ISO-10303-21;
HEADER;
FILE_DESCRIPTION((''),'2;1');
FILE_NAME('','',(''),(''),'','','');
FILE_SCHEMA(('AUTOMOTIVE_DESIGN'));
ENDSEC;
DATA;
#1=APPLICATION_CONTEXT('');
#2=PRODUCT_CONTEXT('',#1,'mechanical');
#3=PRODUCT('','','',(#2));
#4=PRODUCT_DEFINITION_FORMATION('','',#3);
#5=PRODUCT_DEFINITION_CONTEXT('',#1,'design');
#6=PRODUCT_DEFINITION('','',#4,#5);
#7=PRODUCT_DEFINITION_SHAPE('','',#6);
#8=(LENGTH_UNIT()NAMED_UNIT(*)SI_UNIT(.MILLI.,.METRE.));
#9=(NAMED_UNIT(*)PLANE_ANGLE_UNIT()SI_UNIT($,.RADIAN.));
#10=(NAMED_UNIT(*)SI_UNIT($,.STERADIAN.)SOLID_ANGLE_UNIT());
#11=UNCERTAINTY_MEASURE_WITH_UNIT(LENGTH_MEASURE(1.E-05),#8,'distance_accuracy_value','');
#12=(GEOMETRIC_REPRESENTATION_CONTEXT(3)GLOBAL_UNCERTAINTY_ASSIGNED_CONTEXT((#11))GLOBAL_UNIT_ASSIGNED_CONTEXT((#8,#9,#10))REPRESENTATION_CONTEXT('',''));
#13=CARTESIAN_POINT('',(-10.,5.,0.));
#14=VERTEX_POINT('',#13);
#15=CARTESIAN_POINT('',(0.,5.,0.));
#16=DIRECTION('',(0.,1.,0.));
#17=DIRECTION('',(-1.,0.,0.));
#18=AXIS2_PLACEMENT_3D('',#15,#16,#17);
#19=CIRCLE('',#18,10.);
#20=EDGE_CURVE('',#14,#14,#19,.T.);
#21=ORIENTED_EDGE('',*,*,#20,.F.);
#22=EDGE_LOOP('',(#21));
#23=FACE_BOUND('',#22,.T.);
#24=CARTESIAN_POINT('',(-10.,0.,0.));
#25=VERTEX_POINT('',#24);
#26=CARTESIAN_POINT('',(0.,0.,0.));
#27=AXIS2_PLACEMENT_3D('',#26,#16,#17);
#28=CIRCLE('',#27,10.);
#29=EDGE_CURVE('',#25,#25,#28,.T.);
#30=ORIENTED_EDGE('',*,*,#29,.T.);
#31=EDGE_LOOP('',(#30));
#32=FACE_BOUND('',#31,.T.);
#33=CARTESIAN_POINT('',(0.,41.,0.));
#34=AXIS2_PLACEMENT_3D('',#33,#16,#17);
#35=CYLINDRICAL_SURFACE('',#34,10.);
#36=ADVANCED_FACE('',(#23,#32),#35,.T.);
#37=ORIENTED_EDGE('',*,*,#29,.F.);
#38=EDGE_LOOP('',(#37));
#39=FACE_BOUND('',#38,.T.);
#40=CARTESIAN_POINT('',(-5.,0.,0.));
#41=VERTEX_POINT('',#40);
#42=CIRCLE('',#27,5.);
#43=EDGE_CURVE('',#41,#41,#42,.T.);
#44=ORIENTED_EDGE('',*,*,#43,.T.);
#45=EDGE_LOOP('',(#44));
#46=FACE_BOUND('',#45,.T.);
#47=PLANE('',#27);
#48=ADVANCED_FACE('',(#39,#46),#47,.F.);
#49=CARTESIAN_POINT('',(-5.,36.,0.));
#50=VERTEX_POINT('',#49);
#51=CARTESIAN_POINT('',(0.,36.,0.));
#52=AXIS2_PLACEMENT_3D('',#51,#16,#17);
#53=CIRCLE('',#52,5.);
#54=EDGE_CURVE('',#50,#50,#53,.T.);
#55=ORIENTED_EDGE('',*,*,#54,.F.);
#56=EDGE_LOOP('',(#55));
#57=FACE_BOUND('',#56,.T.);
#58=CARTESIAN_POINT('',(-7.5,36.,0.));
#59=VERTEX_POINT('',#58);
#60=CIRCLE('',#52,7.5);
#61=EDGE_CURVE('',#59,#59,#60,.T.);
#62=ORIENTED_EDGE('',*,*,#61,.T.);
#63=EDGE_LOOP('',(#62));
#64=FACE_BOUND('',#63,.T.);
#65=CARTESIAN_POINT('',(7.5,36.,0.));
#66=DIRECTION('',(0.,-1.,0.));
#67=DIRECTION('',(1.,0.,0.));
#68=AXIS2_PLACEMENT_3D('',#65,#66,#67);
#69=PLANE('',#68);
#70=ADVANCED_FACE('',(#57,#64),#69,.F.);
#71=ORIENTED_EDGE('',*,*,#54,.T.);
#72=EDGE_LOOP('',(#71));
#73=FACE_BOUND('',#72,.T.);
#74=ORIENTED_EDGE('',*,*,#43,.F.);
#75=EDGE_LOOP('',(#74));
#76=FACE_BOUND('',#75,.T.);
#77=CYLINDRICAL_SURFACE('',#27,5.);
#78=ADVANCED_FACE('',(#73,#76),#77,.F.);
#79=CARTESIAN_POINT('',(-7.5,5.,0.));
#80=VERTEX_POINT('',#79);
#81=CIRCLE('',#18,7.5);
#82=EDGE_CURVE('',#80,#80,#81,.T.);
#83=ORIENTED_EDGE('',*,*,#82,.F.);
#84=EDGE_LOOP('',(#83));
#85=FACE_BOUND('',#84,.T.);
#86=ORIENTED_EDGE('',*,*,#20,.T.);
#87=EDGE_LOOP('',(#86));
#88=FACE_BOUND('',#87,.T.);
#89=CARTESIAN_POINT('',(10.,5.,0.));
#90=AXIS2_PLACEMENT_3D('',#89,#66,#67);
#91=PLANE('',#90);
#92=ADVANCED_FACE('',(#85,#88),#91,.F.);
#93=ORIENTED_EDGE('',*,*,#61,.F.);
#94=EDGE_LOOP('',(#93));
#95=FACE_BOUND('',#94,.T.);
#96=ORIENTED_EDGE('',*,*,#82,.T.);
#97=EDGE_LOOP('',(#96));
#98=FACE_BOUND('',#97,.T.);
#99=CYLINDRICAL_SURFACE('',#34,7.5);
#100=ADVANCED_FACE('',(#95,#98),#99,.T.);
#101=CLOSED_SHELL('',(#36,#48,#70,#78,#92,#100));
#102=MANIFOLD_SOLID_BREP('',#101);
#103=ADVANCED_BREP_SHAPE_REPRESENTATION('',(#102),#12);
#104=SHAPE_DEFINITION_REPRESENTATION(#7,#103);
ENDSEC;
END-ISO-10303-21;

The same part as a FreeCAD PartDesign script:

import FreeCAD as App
import Part
import Sketcher

V = App.Vector
Q = App.Units.Quantity


def add_polygon(sketch, points):
    """Adds a closed chain of lines whose ends are joined by coincident constraints."""
    first, n = sketch.GeometryCount, len(points)
    for a, b in zip(points, points[1:] + points[:1]):
        sketch.addGeometry(Part.LineSegment(App.Vector(*a, 0), App.Vector(*b, 0)), False)
    for i in range(n):
        sketch.addConstraint(Sketcher.Constraint("Coincident", first + i, 2, first + (i + 1) % n, 1))

doc = App.newDocument("Part")
body = doc.addObject("PartDesign::Body", "Body")

sketch1 = doc.addObject("Sketcher::SketchObject", "Sketch")
body.addObject(sketch1)
sketch1.AttachmentSupport = (doc.XY_Plane, [""])
sketch1.MapMode = "FlatFace"
add_polygon(sketch1, [(0, 0), (10, 0), (10, 5), (7.5, 5), (7.5, 36), (0, 36)])
sketch1.addConstraint(Sketcher.Constraint("Horizontal", 0))
sketch1.addConstraint(Sketcher.Constraint("Vertical", 1))
sketch1.addConstraint(Sketcher.Constraint("Horizontal", 2))
sketch1.addConstraint(Sketcher.Constraint("Vertical", 3))
sketch1.addConstraint(Sketcher.Constraint("Horizontal", 4))
sketch1.addConstraint(Sketcher.Constraint("Vertical", 5))
sketch1.addConstraint(Sketcher.Constraint("Coincident", 5, 2, -1, 1))
sketch1.addConstraint(Sketcher.Constraint("DistanceX", 0, 1, 0, 2, Q("10 mm")))
sketch1.addConstraint(Sketcher.Constraint("DistanceY", 1, 1, 1, 2, Q("5 mm")))
sketch1.addConstraint(Sketcher.Constraint("DistanceY", 3, 1, 3, 2, Q("31 mm")))
sketch1.addConstraint(Sketcher.Constraint("DistanceX", 2, 2, 2, 1, Q("2.5 mm")))
revolution = doc.addObject("PartDesign::Revolution", "Revolution")
body.addObject(revolution)
revolution.Profile = sketch1
revolution.ReferenceAxis = (sketch1, ["V_Axis"])
revolution.Angle = 360

sketch2 = doc.addObject("Sketcher::SketchObject", "Sketch001")
body.addObject(sketch2)
sketch2.AttachmentSupport = (doc.XZ_Plane, [""])
sketch2.MapMode = "FlatFace"
sketch2.AttachmentOffset = App.Placement(V(0, 0, -36), App.Rotation())
sketch2.addGeometry(Part.Circle(V(0, 0, 0), V(0, 0, 1), 5), False)
sketch2.addConstraint(Sketcher.Constraint("Coincident", 0, 3, -1, 1))
sketch2.addConstraint(Sketcher.Constraint("Diameter", 0, Q("10 mm")))
pocket1 = doc.addObject("PartDesign::Pocket", "Pocket")
body.addObject(pocket1)
pocket1.Profile = sketch2
pocket1.Type = "ThroughAll"
pocket1.Reversed = True

doc.recompute()
